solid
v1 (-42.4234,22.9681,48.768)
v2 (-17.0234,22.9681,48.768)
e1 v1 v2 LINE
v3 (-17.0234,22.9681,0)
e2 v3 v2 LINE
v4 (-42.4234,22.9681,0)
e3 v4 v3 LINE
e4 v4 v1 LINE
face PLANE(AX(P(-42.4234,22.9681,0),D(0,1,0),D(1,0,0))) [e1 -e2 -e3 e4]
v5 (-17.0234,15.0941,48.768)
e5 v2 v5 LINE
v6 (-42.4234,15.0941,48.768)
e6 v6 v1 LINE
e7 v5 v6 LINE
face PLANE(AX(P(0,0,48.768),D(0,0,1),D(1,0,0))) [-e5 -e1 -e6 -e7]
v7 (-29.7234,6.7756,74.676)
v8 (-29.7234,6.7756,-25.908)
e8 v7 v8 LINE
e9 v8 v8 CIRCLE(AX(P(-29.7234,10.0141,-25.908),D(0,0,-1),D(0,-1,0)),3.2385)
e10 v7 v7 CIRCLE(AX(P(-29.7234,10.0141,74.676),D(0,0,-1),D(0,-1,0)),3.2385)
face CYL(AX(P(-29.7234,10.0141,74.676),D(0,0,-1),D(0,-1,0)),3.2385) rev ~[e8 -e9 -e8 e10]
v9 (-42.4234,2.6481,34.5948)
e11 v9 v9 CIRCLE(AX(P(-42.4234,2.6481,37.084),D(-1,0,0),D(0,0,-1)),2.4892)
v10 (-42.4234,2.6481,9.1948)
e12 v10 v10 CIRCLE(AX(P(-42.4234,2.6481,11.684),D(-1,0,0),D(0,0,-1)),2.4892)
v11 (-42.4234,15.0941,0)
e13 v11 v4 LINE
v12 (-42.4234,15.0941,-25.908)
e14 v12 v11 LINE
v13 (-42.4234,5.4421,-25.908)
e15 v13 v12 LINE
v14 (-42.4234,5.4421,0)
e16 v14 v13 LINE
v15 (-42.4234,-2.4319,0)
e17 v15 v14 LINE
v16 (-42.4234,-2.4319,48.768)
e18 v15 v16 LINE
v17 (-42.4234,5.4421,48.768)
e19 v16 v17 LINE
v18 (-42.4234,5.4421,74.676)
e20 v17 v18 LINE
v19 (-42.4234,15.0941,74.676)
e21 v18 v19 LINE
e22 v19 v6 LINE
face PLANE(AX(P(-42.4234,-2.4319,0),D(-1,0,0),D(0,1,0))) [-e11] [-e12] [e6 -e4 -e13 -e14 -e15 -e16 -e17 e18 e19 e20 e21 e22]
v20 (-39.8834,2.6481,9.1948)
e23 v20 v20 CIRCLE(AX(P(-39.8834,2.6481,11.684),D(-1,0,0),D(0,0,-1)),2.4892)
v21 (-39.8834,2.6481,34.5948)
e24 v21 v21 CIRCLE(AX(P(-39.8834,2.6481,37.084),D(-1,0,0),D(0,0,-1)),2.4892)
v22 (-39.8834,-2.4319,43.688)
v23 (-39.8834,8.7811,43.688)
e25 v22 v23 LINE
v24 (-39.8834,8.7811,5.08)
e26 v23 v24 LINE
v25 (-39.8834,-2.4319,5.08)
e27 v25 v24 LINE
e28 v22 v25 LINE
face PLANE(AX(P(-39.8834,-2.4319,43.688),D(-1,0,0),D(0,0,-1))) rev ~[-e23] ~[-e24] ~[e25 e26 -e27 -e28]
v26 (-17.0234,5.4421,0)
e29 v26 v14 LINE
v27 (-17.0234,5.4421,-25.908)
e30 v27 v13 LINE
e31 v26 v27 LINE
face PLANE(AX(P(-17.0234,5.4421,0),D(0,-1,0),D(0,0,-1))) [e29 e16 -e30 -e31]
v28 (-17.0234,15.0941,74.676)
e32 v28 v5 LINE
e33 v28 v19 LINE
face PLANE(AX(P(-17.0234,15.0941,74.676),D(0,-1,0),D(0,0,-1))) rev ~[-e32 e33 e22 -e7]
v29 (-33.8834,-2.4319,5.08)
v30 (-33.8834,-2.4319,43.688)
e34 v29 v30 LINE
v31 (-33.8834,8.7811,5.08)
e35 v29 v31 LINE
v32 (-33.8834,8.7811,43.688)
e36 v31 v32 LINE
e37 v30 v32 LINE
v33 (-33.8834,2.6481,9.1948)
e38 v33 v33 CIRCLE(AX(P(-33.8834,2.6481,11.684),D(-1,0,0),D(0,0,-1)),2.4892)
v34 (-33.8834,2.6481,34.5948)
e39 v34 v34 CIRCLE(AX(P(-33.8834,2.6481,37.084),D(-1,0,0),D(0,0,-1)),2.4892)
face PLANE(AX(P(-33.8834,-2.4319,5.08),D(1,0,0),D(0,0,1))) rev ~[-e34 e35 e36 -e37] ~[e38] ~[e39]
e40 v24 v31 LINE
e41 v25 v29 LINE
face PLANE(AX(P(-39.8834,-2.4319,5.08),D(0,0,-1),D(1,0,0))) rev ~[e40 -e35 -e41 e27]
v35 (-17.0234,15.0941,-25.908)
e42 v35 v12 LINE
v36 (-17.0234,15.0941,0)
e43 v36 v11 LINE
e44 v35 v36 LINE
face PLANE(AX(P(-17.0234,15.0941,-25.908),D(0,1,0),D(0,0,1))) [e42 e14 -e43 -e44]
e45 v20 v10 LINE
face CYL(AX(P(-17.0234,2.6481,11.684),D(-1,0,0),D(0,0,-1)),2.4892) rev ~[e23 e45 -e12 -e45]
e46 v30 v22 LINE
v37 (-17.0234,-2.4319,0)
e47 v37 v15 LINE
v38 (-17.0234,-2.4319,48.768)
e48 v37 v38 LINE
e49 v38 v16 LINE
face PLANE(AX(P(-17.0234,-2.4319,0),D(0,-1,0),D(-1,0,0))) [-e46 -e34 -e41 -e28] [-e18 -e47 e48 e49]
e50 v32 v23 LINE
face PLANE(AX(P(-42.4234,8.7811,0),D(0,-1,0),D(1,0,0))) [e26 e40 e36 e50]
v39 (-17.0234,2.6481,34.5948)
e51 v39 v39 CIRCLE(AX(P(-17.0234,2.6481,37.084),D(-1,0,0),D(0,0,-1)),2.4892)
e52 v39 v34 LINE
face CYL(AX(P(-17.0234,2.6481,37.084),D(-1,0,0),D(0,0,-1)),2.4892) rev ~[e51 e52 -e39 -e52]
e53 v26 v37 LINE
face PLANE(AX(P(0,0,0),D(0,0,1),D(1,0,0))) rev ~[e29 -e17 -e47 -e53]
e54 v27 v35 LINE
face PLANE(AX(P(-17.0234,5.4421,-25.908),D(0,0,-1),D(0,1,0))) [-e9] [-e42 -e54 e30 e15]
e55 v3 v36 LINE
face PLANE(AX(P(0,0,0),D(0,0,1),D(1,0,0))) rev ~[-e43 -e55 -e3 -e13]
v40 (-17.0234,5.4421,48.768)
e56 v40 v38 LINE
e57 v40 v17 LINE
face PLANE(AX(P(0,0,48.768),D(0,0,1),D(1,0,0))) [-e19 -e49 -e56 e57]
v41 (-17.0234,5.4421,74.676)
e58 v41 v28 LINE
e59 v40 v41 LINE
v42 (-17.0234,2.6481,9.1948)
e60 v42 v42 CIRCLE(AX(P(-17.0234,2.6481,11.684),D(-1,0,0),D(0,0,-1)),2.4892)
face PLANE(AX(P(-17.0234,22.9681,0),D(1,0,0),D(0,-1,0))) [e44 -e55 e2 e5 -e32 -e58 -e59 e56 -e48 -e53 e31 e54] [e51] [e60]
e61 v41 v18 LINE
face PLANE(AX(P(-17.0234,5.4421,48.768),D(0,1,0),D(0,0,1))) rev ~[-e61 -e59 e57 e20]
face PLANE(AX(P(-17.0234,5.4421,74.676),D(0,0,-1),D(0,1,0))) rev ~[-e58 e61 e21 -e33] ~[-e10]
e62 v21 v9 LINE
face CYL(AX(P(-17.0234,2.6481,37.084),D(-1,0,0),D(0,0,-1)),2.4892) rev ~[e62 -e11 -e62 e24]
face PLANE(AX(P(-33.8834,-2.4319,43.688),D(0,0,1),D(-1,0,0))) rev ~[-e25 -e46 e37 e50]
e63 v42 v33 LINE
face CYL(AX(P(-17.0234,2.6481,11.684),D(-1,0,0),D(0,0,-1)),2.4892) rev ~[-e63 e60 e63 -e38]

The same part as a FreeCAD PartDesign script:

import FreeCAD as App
import Part
import Sketcher
from FreeCAD import Vector
Q = App.Units.Quantity


def add_polygon(sketch, points):
    """Adds a closed chain of lines whose ends are joined by coincident constraints."""
    first, n = sketch.GeometryCount, len(points)
    for a, b in zip(points, points[1:] + points[:1]):
        sketch.addGeometry(Part.LineSegment(App.Vector(*a, 0), App.Vector(*b, 0)), False)
    for i in range(n):
        sketch.addConstraint(Sketcher.Constraint("Coincident", first + i, 2, first + (i + 1) % n, 1))

doc = App.newDocument("Part")
body = doc.addObject("PartDesign::Body", "Body")

# Sketch on XY plane
sketch1 = doc.addObject("Sketcher::SketchObject", "Sketch")
body.addObject(sketch1)
sketch1.AttachmentSupport = (doc.XY_Plane, [""])
sketch1.MapMode = "FlatFace"
add_polygon(sketch1, [(-17, 23), (-42, 23), (-42, -2), (-17, -2)])  # lines 0-3
sketch1.addConstraint([
    Sketcher.Constraint("Horizontal", 0),
    Sketcher.Constraint("Vertical", 1),
    Sketcher.Constraint("Horizontal", 2),
    Sketcher.Constraint("Vertical", 3),
    Sketcher.Constraint("Equal", 2, 1),
    Sketcher.Constraint("DistanceX", 0, 2, 0, 1, Q("1 in")),
    Sketcher.Constraint("DistanceX", 0, 2, -1, 1, Q("42.4234 mm")),
    Sketcher.Constraint("DistanceY", -1, 1, 0, 2, Q("22.968 mm")),
])
pad1 = doc.addObject("PartDesign::Pad", "Pad")
body.addObject(pad1)
pad1.Profile = sketch1
pad1.Length = Q("1.92 in")

# Sketch on YZ plane
sketch2 = doc.addObject("Sketcher::SketchObject", "Sketch001")
body.addObject(sketch2)
sketch2.AttachmentSupport = (doc.YZ_Plane, [""])
sketch2.MapMode = "FlatFace"
sketch2.AttachmentOffset = App.Placement(Vector(0, 0, -17.0234), App.Rotation())
add_polygon(sketch2, [(5, 49), (15, 49), (15, 75), (5, 75)])  # lines 0-3
sketch2.addConstraint([
    Sketcher.Constraint("Horizontal", 0),
    Sketcher.Constraint("Vertical", 1),
    Sketcher.Constraint("Horizontal", 2),
    Sketcher.Constraint("Vertical", 3),
    Sketcher.Constraint("DistanceY", 1, 1, 1, 2, Q("1.02 in")),
    Sketcher.Constraint("DistanceX", 0, 1, 0, 2, Q("0.38 in")),
    Sketcher.Constraint("DistanceY", -1, 1, 0, 2, Q("1.92 in")),
    Sketcher.Constraint("DistanceX", -1, 1, 0, 2, Q("15.094 mm")),
])
pad2 = doc.addObject("PartDesign::Pad", "Pad001")
body.addObject(pad2)
pad2.Profile = sketch2
pad2.Length = Q("1 in")
pad2.Reversed = True

# Sketch on YZ plane
sketch3 = doc.addObject("Sketcher::SketchObject", "Sketch002")
body.addObject(sketch3)
sketch3.AttachmentSupport = (doc.YZ_Plane, [""])
sketch3.MapMode = "FlatFace"
sketch3.AttachmentOffset = App.Placement(Vector(0, 0, -17.0234), App.Rotation())
add_polygon(sketch3, [(15, -26), (15, 0), (5, 0), (5, -26)])  # lines 0-3
sketch3.addConstraint([
    Sketcher.Constraint("Vertical", 0),
    Sketcher.Constraint("Horizontal", 1),
    Sketcher.Constraint("Vertical", 2),
    Sketcher.Constraint("Horizontal", 3),
    Sketcher.Constraint("PointOnObject", 0, 2, -1),
    Sketcher.Constraint("DistanceX", 1, 2, 1, 1, Q("0.38 in")),
    Sketcher.Constraint("DistanceY", 0, 1, 0, 2, Q("1.02 in")),
    Sketcher.Constraint("DistanceX", -1, 1, 0, 2, Q("15.094 mm")),
])
pad3 = doc.addObject("PartDesign::Pad", "Pad002")
body.addObject(pad3)
pad3.Profile = sketch3
pad3.Length = Q("1 in")
pad3.Reversed = True

# Sketch on XY plane
sketch4 = doc.addObject("Sketcher::SketchObject", "Sketch003")
body.addObject(sketch4)
sketch4.AttachmentSupport = (doc.XY_Plane, [""])
sketch4.MapMode = "FlatFace"
sketch4.AttachmentOffset = App.Placement(Vector(0, 0, 2.94 * 25.4), App.Rotation())
sketch4.addGeometry(Part.Circle(Vector(-29.7, 10, 0), Vector(0, 0, 1), 3.2), False)
sketch4.addConstraint([
    Sketcher.Constraint("Diameter", 0, Q("0.255 in")),
    Sketcher.Constraint("DistanceX", 0, 3, -1, 1, Q("29.7234 mm")),
    Sketcher.Constraint("DistanceY", -1, 1, 0, 3, Q("10.014 mm")),
])
doc.recompute()
hole = doc.addObject("PartDesign::Hole", "Hole")
body.addObject(hole)
hole.Profile = sketch4
hole.ThreadType = "None"
hole.Diameter = Q("0.255 in")
hole.DepthType = "ThroughAll"

# Sketch on YZ plane
sketch5 = doc.addObject("Sketcher::SketchObject", "Sketch004")
body.addObject(sketch5)
sketch5.AttachmentSupport = (doc.YZ_Plane, [""])
sketch5.MapMode = "FlatFace"
sketch5.AttachmentOffset = App.Placement(Vector(0, 0, -17.0234), App.Rotation())
sketch5.addGeometry([
    Part.Circle(Vector(2.6, 37.1, 0), Vector(0, 0, 1), 2.5),
    Part.Circle(Vector(2.6, 11.7, 0), Vector(0, 0, 1), 2.5),
], False)
sketch5.addConstraint([
    Sketcher.Constraint("Equal", 0, 1),
    Sketcher.Constraint("Vertical", 0, 3, 1, 3),
    Sketcher.Constraint("Diameter", 0, Q("0.196 in")),
    Sketcher.Constraint("DistanceY", 1, 3, 0, 3, Q("1 in")),
    Sketcher.Constraint("DistanceY", -1, 1, 0, 3, Q("1.46 in")),
    Sketcher.Constraint("DistanceX", -1, 1, 0, 3, Q("2.648 mm")),
])
doc.recompute()
hole2 = doc.addObject("PartDesign::Hole", "Hole001")
body.addObject(hole2)
hole2.Profile = sketch5
hole2.ThreadType = "None"
hole2.Diameter = Q("0.196 in")
hole2.DepthType = "ThroughAll"

# Sketch on XZ plane
sketch6 = doc.addObject("Sketcher::SketchObject", "Sketch005")
body.addObject(sketch6)
sketch6.AttachmentSupport = (doc.XZ_Plane, [""])
sketch6.MapMode = "FlatFace"
sketch6.AttachmentOffset = App.Placement(Vector(0, 0, 2.4319), App.Rotation())
add_polygon(sketch6, [(-34, 5), (-34, 44), (-40, 44), (-40, 5)])  # lines 0-3
sketch6.addConstraint([
    Sketcher.Constraint("Vertical", 0),
    Sketcher.Constraint("Horizontal", 1),
    Sketcher.Constraint("Vertical", 2),
    Sketcher.Constraint("Horizontal", 3),
    Sketcher.Constraint("DistanceY", -1, 1, 2, 2, Q("0.2 in")),
    Sketcher.Constraint("DistanceX", 1, 2, 1, 1, Q("6 mm")),
    Sketcher.Constraint("DistanceY", 0, 1, 0, 2, Q("1.52 in")),
    Sketcher.Constraint("DistanceX", 0, 2, -1, 1, Q("1.334 in")),
])
pocket1 = doc.addObject("PartDesign::Pocket", "Pocket")
body.addObject(pocket1)
pocket1.Profile = sketch6
pocket1.Length = 11.213

doc.recompute()
